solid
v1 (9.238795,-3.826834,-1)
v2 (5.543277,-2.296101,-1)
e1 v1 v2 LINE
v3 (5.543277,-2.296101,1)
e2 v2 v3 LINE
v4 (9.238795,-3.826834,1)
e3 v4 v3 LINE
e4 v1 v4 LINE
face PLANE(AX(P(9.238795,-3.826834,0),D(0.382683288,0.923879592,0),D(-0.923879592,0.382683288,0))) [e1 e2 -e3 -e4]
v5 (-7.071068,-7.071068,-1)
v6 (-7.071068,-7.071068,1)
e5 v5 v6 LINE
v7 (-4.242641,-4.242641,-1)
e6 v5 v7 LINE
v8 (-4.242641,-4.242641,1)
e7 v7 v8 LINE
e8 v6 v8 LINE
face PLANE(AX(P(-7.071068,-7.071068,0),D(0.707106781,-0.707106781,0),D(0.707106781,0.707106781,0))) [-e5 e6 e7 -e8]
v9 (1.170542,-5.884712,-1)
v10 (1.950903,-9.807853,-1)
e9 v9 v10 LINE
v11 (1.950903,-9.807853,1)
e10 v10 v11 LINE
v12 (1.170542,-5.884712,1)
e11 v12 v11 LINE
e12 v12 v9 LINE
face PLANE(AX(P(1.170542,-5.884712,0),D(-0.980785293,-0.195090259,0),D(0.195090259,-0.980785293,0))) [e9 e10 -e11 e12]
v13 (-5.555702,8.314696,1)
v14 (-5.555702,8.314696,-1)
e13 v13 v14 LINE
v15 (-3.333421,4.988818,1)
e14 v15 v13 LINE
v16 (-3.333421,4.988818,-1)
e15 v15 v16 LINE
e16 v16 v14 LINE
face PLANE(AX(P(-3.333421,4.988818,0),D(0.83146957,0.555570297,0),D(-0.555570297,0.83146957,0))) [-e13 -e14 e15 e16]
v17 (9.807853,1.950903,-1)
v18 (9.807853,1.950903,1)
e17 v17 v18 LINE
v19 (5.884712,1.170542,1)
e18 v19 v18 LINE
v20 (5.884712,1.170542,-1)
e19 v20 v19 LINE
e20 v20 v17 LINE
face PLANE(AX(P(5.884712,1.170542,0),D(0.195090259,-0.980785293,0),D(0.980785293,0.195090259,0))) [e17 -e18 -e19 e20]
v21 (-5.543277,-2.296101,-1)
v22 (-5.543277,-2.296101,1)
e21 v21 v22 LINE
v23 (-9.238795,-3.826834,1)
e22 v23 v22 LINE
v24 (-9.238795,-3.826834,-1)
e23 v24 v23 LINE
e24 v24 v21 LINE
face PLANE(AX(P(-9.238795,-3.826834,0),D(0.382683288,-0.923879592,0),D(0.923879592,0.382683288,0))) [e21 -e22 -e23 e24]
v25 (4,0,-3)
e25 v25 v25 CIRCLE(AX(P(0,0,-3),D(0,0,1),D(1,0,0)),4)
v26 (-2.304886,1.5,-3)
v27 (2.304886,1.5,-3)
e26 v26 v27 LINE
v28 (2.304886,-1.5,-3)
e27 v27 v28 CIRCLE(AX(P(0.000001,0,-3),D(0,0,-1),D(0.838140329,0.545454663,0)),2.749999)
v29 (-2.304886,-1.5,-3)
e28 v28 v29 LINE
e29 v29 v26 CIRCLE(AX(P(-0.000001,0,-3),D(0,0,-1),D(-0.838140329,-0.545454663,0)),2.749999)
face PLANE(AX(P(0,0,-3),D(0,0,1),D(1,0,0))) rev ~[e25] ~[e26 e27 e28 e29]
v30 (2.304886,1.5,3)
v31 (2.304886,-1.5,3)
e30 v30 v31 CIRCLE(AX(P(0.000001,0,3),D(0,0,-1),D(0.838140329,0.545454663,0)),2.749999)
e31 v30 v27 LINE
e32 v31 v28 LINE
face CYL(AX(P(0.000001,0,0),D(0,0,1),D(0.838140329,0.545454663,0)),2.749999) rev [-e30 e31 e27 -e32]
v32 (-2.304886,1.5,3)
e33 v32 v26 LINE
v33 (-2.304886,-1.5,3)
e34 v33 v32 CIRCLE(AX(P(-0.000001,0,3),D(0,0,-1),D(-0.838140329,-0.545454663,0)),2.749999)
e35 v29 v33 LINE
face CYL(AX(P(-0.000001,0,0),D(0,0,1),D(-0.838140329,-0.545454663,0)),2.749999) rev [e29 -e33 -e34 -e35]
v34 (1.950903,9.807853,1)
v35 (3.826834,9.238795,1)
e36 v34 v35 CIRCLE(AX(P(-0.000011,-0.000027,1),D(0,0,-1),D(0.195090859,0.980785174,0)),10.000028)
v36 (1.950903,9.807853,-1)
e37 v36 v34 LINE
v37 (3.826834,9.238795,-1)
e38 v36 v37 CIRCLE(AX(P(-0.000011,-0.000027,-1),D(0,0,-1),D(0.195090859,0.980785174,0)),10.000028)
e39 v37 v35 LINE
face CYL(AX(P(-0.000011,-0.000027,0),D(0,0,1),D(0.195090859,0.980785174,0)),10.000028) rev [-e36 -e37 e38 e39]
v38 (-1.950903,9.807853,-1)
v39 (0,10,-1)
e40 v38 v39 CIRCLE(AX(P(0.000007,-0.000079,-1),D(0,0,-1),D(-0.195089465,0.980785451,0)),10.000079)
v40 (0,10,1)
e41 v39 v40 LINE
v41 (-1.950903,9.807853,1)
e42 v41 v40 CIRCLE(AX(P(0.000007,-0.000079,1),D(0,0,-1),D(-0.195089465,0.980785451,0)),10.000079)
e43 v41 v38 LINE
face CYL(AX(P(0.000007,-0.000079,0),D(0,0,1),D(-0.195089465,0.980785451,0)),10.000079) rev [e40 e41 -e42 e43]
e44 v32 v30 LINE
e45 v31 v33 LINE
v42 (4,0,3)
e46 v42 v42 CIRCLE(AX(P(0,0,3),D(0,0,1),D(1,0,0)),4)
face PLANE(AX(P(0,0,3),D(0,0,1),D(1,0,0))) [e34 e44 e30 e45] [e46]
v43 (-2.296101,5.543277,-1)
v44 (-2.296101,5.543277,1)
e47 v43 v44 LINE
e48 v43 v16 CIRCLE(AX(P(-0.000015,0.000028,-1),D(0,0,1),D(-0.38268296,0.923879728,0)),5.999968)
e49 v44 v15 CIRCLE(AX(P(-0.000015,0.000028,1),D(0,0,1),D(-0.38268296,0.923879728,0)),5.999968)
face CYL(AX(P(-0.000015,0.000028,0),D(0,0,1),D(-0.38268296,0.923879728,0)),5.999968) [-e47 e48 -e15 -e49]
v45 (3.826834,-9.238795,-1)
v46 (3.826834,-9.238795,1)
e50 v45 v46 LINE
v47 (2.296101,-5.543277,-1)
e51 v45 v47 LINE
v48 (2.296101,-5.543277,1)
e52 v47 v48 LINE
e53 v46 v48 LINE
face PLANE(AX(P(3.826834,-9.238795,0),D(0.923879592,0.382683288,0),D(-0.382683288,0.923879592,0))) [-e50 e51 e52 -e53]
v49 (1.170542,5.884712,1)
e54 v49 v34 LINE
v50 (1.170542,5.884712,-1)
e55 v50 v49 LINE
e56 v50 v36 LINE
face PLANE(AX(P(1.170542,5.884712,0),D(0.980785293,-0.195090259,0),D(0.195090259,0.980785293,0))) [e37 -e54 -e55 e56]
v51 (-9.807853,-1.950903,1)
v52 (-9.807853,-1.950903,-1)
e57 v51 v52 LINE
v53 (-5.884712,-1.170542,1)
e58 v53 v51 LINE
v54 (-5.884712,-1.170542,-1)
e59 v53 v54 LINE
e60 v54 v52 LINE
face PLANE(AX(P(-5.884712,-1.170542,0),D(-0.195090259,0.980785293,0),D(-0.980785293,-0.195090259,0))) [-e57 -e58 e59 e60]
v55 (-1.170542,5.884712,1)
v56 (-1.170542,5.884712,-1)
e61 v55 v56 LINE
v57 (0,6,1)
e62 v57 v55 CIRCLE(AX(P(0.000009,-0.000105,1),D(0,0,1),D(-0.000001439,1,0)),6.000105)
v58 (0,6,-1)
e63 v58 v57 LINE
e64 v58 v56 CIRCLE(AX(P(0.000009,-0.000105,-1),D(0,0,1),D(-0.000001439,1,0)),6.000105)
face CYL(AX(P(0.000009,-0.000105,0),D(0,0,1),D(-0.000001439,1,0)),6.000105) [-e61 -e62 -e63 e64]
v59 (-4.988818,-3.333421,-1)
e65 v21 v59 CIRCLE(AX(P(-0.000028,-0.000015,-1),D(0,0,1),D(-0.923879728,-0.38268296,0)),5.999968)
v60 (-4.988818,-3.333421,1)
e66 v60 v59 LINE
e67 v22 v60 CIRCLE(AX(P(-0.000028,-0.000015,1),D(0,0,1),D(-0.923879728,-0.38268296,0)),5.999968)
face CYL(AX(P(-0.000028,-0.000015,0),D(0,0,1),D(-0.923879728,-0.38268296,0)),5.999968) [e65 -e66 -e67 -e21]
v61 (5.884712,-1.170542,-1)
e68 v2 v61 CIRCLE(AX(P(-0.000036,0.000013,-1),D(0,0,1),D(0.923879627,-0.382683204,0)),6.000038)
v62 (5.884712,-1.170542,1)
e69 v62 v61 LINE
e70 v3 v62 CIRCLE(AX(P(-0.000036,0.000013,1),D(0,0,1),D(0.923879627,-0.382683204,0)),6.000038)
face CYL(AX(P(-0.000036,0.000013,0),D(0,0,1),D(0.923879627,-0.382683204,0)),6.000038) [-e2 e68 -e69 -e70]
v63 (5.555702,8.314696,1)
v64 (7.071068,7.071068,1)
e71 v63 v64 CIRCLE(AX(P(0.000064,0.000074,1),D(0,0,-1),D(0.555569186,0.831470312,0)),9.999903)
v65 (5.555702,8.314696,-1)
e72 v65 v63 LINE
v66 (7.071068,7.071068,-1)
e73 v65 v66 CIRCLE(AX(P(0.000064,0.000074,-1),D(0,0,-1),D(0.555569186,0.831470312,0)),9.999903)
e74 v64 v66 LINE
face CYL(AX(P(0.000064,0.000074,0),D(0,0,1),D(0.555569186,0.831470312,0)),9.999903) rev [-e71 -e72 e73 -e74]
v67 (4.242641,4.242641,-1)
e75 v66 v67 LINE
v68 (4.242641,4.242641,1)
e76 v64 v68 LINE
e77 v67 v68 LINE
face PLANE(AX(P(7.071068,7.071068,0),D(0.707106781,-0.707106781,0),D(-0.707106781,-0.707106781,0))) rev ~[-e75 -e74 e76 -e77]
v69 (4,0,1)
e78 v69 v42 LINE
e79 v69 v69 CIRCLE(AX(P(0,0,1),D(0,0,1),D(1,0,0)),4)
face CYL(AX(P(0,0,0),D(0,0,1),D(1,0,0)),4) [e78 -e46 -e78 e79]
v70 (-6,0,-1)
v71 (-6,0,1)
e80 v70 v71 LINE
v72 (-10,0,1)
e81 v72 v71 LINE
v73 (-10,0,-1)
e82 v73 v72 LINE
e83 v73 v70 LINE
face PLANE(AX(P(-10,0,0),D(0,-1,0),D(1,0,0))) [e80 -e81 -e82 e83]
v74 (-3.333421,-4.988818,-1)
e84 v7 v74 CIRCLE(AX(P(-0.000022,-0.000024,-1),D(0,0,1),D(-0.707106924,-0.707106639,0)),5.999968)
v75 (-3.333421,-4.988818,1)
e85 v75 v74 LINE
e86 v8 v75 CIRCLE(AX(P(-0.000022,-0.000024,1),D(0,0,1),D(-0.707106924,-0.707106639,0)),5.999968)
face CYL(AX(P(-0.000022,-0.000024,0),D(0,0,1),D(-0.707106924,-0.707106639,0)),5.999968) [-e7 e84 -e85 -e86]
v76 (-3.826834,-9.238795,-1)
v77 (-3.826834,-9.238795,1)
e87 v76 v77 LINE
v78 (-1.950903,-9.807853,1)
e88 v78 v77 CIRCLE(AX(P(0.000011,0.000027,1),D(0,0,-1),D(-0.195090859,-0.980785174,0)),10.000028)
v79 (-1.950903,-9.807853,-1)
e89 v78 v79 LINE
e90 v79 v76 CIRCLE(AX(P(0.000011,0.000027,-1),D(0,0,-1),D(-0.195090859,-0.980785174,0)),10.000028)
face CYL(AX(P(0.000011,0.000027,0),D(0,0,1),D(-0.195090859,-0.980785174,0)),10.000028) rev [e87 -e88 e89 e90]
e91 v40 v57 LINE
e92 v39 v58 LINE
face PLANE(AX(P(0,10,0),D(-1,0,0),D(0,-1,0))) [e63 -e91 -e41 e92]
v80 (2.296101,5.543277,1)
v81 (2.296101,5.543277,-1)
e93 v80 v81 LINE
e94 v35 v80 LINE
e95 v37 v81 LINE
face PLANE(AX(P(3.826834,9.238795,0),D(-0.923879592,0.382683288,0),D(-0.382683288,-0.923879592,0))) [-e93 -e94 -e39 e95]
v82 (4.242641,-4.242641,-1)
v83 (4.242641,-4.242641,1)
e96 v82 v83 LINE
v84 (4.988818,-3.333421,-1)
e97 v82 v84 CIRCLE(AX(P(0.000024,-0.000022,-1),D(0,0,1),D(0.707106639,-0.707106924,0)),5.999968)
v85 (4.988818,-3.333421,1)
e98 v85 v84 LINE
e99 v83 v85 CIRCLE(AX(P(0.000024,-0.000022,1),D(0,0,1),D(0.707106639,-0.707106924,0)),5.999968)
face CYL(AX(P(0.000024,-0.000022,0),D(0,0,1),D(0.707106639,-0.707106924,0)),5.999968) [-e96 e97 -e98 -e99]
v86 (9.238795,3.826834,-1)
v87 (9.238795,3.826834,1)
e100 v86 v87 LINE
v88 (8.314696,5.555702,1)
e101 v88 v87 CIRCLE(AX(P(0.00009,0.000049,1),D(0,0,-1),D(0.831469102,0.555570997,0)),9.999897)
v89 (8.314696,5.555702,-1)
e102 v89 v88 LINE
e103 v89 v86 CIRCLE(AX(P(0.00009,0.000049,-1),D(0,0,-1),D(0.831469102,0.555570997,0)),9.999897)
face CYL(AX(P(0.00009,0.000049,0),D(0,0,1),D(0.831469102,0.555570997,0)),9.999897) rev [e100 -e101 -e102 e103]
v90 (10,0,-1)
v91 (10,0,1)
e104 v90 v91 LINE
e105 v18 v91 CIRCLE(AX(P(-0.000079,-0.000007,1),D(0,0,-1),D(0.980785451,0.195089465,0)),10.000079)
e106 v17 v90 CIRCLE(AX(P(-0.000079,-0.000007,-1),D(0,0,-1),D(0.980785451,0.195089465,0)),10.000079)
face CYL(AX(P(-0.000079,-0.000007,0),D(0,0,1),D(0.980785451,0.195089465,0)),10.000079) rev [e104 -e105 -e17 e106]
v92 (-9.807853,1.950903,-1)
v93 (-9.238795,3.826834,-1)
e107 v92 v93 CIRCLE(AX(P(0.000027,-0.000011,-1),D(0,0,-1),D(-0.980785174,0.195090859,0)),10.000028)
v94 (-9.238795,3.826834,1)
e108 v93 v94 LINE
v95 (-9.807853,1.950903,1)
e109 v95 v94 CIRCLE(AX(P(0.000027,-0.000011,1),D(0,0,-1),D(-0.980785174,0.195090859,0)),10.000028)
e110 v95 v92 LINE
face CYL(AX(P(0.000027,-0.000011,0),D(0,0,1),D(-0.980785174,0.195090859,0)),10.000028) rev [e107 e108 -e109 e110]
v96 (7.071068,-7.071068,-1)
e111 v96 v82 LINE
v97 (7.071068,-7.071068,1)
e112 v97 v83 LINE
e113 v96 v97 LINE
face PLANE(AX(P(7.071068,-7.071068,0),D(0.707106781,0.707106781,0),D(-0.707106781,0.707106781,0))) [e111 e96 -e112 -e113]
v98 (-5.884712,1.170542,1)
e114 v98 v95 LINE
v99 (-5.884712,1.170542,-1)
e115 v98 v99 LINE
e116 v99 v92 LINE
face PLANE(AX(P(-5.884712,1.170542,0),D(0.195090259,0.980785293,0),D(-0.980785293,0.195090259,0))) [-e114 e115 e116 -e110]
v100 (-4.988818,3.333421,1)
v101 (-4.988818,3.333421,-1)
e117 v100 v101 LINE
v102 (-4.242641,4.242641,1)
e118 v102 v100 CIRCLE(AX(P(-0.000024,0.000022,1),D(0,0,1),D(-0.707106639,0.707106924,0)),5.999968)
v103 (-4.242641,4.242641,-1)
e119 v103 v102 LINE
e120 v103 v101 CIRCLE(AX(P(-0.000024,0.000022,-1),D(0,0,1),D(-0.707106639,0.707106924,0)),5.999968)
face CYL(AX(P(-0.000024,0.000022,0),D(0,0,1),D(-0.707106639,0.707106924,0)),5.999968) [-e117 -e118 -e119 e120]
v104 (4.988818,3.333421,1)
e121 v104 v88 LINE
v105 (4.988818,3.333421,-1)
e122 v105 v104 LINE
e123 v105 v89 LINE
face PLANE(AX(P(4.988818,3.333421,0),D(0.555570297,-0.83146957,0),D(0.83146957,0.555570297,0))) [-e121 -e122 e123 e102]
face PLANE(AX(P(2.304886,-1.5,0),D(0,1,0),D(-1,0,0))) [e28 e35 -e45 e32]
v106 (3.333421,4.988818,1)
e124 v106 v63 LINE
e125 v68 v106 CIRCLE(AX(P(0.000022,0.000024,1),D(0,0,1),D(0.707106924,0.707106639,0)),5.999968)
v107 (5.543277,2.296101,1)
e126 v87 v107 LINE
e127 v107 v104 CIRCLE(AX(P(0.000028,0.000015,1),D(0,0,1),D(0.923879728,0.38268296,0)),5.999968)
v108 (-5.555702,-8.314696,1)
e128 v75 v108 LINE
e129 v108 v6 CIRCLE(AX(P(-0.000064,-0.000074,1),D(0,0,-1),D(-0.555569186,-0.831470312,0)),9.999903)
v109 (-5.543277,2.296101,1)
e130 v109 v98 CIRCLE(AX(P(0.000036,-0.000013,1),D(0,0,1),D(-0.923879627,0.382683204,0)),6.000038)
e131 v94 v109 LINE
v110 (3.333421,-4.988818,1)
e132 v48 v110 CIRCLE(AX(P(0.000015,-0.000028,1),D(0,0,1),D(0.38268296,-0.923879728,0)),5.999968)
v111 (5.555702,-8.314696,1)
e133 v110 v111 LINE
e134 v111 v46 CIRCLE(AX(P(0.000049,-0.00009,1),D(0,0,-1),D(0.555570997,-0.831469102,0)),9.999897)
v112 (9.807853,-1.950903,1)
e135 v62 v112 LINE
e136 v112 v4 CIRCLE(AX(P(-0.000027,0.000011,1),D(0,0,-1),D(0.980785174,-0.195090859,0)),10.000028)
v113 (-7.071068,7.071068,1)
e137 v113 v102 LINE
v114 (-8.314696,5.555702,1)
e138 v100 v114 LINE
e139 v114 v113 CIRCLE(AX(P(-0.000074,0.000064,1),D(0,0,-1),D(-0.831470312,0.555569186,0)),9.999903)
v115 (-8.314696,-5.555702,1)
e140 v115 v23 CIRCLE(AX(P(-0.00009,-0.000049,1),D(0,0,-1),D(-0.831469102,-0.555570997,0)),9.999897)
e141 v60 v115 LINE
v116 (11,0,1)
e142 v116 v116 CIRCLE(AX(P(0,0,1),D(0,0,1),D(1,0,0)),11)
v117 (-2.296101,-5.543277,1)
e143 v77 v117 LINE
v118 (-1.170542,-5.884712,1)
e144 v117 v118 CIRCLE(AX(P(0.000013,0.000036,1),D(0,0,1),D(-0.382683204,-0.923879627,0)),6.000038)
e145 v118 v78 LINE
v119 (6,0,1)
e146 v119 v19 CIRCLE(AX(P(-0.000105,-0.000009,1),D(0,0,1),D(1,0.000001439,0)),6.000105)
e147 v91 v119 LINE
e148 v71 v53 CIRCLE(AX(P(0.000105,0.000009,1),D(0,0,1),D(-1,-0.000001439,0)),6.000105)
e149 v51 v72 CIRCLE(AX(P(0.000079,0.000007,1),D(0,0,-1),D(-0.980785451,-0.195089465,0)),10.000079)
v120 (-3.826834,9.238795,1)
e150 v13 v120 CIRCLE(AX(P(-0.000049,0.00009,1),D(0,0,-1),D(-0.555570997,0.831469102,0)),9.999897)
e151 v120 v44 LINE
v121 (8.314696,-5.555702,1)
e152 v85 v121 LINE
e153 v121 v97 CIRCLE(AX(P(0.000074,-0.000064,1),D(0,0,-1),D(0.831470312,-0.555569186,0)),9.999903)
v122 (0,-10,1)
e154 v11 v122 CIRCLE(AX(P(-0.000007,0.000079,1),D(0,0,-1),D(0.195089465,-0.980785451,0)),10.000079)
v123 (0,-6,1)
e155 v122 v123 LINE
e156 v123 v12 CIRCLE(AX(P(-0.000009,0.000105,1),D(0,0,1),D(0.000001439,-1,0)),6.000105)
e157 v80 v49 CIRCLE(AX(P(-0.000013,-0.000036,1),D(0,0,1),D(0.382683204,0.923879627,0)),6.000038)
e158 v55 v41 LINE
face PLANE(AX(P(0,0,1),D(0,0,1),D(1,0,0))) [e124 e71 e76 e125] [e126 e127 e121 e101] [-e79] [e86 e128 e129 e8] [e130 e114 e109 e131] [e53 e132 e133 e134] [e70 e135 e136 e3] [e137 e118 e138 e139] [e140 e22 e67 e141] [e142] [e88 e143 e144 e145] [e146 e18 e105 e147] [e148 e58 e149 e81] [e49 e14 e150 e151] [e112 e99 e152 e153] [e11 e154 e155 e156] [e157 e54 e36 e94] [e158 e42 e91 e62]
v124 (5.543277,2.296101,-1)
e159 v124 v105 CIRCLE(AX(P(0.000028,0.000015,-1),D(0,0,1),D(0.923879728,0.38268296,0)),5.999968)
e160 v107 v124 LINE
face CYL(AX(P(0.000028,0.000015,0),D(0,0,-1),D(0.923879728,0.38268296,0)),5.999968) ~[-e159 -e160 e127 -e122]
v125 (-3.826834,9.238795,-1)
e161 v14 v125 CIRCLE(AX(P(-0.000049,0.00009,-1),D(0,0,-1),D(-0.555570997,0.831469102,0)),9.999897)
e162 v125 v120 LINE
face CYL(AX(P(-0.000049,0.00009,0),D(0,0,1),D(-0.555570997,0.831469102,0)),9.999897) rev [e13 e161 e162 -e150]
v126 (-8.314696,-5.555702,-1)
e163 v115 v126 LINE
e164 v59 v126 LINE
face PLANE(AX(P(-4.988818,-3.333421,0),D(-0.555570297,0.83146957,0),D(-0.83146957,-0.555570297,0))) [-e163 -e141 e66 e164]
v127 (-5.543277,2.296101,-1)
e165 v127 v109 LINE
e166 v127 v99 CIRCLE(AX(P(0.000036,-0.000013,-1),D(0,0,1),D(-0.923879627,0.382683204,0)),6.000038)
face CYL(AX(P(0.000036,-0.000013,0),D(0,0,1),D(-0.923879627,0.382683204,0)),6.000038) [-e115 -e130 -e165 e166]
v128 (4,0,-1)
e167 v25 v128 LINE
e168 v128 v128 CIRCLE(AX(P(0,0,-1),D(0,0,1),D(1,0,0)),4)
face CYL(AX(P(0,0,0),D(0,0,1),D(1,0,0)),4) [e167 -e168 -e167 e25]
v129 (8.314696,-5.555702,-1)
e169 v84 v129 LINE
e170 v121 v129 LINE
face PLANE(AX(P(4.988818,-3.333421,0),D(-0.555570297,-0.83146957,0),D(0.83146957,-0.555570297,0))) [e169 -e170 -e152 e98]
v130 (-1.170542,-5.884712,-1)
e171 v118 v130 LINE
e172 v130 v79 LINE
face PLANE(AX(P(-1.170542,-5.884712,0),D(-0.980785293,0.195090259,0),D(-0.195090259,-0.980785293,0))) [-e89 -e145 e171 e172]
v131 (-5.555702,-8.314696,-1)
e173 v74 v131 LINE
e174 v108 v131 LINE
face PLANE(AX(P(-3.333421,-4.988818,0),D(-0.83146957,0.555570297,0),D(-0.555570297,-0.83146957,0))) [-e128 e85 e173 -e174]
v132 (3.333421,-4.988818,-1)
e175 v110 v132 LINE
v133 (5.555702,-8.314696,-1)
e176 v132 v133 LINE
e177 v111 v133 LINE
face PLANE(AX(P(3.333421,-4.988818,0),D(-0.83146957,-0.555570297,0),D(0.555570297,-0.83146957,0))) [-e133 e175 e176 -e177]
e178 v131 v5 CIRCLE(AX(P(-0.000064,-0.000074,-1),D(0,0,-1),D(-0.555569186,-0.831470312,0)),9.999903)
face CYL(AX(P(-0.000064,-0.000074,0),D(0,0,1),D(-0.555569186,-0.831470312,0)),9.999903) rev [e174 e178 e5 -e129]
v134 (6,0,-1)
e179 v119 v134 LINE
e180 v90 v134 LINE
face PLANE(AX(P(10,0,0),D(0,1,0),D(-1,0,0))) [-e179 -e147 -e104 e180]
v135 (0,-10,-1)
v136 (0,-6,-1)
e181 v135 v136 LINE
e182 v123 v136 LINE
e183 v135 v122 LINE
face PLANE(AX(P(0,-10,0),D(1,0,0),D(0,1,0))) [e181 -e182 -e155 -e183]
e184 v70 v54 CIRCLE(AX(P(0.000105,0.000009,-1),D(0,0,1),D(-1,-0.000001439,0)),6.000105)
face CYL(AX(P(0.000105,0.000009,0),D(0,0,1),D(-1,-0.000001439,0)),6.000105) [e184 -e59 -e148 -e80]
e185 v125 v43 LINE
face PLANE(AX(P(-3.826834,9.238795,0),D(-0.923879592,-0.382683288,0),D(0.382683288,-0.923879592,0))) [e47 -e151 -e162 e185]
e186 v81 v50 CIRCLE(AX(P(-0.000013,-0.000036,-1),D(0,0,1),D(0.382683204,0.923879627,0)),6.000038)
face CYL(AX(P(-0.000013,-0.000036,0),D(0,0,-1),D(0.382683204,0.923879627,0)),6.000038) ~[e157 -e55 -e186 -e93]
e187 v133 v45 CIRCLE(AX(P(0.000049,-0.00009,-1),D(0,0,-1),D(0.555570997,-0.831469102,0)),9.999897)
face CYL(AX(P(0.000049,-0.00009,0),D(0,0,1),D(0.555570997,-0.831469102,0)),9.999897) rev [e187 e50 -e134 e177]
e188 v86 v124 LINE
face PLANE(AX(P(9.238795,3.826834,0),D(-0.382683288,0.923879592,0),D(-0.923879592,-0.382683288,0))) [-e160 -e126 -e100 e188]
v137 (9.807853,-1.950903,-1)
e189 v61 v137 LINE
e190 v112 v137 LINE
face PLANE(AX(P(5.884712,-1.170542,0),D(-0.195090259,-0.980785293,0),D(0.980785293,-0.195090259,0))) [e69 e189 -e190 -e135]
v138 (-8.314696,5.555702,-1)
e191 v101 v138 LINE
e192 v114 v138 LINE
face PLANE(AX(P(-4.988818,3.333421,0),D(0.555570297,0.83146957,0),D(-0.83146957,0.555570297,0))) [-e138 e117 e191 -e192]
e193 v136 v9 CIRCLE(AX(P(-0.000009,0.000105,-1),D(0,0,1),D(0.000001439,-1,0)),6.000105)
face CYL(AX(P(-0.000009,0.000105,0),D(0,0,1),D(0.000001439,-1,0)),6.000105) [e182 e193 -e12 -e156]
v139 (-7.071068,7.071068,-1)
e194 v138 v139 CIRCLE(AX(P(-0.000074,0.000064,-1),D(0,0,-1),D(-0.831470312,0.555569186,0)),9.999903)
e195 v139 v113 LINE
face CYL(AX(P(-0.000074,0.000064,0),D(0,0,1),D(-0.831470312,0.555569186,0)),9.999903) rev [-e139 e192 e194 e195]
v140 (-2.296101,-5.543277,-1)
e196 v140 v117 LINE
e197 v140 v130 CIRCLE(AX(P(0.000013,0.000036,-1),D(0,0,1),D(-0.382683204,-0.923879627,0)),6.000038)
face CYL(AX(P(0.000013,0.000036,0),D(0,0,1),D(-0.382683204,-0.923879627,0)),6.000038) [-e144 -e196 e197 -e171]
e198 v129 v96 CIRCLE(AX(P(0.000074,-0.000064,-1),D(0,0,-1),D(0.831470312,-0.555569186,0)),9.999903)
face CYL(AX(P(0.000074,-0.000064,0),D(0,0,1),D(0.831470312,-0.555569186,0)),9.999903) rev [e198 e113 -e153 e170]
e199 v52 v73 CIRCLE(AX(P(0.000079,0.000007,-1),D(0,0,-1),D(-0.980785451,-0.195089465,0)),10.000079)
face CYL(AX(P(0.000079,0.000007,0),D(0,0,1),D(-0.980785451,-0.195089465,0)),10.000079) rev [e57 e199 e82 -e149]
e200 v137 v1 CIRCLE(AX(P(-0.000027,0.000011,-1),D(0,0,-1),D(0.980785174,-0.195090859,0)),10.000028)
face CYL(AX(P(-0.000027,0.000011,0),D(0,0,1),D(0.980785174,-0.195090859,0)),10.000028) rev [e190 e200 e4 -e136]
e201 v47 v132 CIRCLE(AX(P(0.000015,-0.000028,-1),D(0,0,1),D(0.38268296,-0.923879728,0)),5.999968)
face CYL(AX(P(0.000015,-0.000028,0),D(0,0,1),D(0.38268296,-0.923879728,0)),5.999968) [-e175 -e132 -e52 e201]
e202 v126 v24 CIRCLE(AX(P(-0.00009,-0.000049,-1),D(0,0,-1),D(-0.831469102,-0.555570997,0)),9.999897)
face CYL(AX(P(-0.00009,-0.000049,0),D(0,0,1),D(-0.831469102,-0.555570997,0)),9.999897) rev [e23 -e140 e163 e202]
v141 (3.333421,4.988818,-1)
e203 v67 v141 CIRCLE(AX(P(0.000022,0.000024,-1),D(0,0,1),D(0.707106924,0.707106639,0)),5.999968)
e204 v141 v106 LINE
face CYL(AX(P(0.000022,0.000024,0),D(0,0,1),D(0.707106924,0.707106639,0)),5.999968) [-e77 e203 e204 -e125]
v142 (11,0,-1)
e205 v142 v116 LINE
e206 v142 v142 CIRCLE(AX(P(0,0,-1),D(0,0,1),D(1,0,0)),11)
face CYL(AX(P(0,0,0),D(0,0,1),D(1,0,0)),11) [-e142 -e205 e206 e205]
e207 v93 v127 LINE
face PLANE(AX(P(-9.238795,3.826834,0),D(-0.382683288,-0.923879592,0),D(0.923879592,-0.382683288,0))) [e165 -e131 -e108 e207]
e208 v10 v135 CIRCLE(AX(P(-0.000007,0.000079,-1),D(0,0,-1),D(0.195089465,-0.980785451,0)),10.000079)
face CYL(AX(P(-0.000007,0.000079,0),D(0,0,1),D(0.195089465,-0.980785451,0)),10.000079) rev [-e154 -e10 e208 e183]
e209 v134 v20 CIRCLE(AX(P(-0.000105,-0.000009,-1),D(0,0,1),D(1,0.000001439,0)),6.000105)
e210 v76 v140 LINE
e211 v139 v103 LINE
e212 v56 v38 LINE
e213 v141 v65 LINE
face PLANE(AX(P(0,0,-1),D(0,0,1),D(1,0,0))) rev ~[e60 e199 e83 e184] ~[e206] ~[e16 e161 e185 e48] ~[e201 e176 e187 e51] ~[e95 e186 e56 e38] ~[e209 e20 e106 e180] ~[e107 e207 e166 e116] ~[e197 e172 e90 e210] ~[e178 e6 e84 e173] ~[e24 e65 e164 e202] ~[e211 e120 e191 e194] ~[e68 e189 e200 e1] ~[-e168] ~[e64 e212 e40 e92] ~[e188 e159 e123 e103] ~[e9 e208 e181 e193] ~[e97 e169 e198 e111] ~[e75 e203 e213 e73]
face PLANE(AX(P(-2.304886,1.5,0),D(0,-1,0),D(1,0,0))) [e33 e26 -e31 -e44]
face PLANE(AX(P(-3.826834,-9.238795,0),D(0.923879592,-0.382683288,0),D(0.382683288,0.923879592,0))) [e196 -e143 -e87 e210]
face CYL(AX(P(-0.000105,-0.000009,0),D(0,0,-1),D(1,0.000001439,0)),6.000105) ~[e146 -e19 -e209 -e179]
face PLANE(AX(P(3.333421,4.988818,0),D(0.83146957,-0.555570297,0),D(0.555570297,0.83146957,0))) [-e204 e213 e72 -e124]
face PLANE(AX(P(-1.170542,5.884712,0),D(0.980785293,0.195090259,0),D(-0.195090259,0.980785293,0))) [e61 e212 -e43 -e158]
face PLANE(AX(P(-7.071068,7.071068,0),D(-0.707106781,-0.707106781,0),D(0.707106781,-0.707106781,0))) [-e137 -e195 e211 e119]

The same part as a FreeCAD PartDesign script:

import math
import FreeCAD as App
import Part
import Sketcher
Q = App.Units.Quantity

doc = App.newDocument("Part")
params = doc.addObject("Spreadsheet::Sheet", "Params")
for row, (alias, value) in enumerate([
    ("sketch1_diameter", "8 mm"),
    ("sketch1_radius", "2.749999 mm"),
    ("pad1_length", "6 mm"),
    ("sketch2_diameter", "22 mm"),
    ("sketch2_diameter2", "8 mm"),
    ("sketch2_width", "4 mm"),
    ("sketch2_width2", "4 mm"),
    ("sketch2_height", "4 mm"),
    ("pad2_length", "2 mm"),
], start=1):
    params.set(f"A{row}", alias)
    params.set(f"B{row}", "=" + value)
    params.setAlias(f"B{row}", alias)

body = doc.addObject("PartDesign::Body", "Body")

sketch1 = body.newObject("Sketcher::SketchObject", "Sketch")
sketch1.AttachmentSupport = (doc.getObject("XY_Plane"), [""])
sketch1.MapMode = "FlatFace"
sketch1.addGeometry([
    Part.Circle(App.Vector(0, 0, 0), App.Vector(0, 0, 1), 4),
    Part.LineSegment(App.Vector(2.3, -1.5, 0), App.Vector(-2.3, -1.5, 0)),
    Part.ArcOfCircle(Part.Circle(App.Vector(0, 0, 0), App.Vector(0, 0, 1), 2.7), math.radians(147), math.radians(213)),
    Part.LineSegment(App.Vector(-2.3, 1.5, 0), App.Vector(2.3, 1.5, 0)),
    Part.ArcOfCircle(Part.Circle(App.Vector(0, 0, 0), App.Vector(0, 0, 1), 2.7), math.radians(-33), math.radians(33)),
], False)
sketch1.addConstraint([
    Sketcher.Constraint("Coincident", 1, 2, 2, 2),
    Sketcher.Constraint("Coincident", 2, 1, 3, 1),
    Sketcher.Constraint("Coincident", 3, 2, 4, 2),
    Sketcher.Constraint("Coincident", 4, 1, 1, 1),
    Sketcher.Constraint("Horizontal", 1),
    Sketcher.Constraint("Horizontal", 3),
    Sketcher.Constraint("Coincident", 0, 3, -1, 1),
    Sketcher.Constraint("Coincident", 2, 3, -1, 1),
    Sketcher.Constraint("Coincident", 4, 3, -1, 1),
    Sketcher.Constraint("Equal", 2, 4),
    Sketcher.Constraint("Vertical", 1, 2, 2, 1),
    Sketcher.Constraint("Diameter", 0, Q("8 mm")),
    Sketcher.Constraint("Radius", 2, Q("2.749999 mm")),
    Sketcher.Constraint("DistanceY", 1, 2, 2, 1, Q("3 mm")),
])
sketch1.setExpression("Constraints[11]", "Params.sketch1_diameter")
sketch1.setExpression("Constraints[12]", "Params.sketch1_radius")
pad1 = body.newObject("PartDesign::Pad", "Pad")
pad1.Profile = sketch1
pad1.setExpression("Length", "Params.pad1_length")
pad1.Midplane = True

sketch2 = body.newObject("Sketcher::SketchObject", "Sketch001")
sketch2.AttachmentSupport = (doc.getObject("XY_Plane"), [""])
sketch2.MapMode = "FlatFace"
sketch2.addGeometry([
    Part.Circle(App.Vector(0, 0, 0), App.Vector(0, 0, 1), 11),
    Part.ArcOfCircle(Part.Circle(App.Vector(-0.000064, -0.000074, 0), App.Vector(0, 0, 1), 9.999903), math.radians(-135.000039), math.radians(-123.749928)),
    Part.LineSegment(App.Vector(-7.071068, -7.071068, 0), App.Vector(-4.242641, -4.242641, 0)),
    Part.ArcOfCircle(Part.Circle(App.Vector(-0.000022, -0.000024, 0), App.Vector(0, 0, 1), 5.999968), math.radians(-135.000012), math.radians(-123.749946)),
    Part.LineSegment(App.Vector(-3.333421, -4.988818, 0), App.Vector(-5.555702, -8.314696, 0)),
    Part.ArcOfCircle(Part.Circle(App.Vector(0.000011, 0.000027, 0), App.Vector(0, 0, 1), 10.000028), math.radians(-112.5), math.radians(-101.250031)),
    Part.LineSegment(App.Vector(-3.826834, -9.238795, 0), App.Vector(-2.296101, -5.543277, 0)),
    Part.ArcOfCircle(Part.Circle(App.Vector(0.000013, 0.000036, 0), App.Vector(0, 0, 1), 6.000038), math.radians(-112.499986), math.radians(-101.250052)),
    Part.LineSegment(App.Vector(-1.170542, -5.884712, 0), App.Vector(-1.950903, -9.807853, 0)),
    Part.ArcOfCircle(Part.Circle(App.Vector(-0.00009, -0.000049, 0), App.Vector(0, 0, 1), 9.999897), math.radians(-157.500063), math.radians(-146.249947)),
    Part.LineSegment(App.Vector(-9.238795, -3.826834, 0), App.Vector(-5.543277, -2.296101, 0)),
    Part.ArcOfCircle(Part.Circle(App.Vector(-0.000028, -0.000015, 0), App.Vector(0, 0, 1), 5.999968), math.radians(-157.500029), math.radians(-146.249979)),
    Part.LineSegment(App.Vector(-4.988818, -3.333421, 0), App.Vector(-8.314696, -5.555702, 0)),
    Part.ArcOfCircle(Part.Circle(App.Vector(0.000079, 0.000007, 0), App.Vector(0, 0, 1), 10.000079), math.radians(-179.99996), math.radians(-168.75005)),
    Part.LineSegment(App.Vector(-10, 0, 0), App.Vector(-6, 0, 0)),
    Part.ArcOfCircle(Part.Circle(App.Vector(0.000105, 0.000009, 0), App.Vector(0, 0, 1), 6.000105), math.radians(-179.999918), math.radians(-168.750114)),
    Part.LineSegment(App.Vector(-5.884712, -1.170542, 0), App.Vector(-9.807853, -1.950903, 0)),
    Part.LineSegment(App.Vector(1.170542, -5.884712, 0), App.Vector(1.950903, -9.807853, 0)),
    Part.ArcOfCircle(Part.Circle(App.Vector(-0.000007, 0.000079, 0), App.Vector(0, 0, 1), 10.000079), math.radians(-89.99996), math.radians(-78.75005)),
    Part.LineSegment(App.Vector(0, -10, 0), App.Vector(0, -6, 0)),
    Part.ArcOfCircle(Part.Circle(App.Vector(-0.000009, 0.000105, 0), App.Vector(0, 0, 1), 6.000105), math.radians(-89.999918), math.radians(-78.750114)),
    Part.ArcOfCircle(Part.Circle(App.Vector(0.000049, -0.00009, 0), App.Vector(0, 0, 1), 9.999897), math.radians(-67.500063), math.radians(-56.249947)),
    Part.LineSegment(App.Vector(3.826834, -9.238795, 0), App.Vector(2.296101, -5.543277, 0)),
    Part.ArcOfCircle(Part.Circle(App.Vector(0.000015, -0.000028, 0), App.Vector(0, 0, 1), 5.999968), math.radians(-67.500029), math.radians(-56.249979)),
    Part.LineSegment(App.Vector(3.333421, -4.988818, 0), App.Vector(5.555702, -8.314696, 0)),
    Part.ArcOfCircle(Part.Circle(App.Vector(0.000074, -0.000064, 0), App.Vector(0, 0, 1), 9.999903), math.radians(-45.000039), math.radians(-33.749928)),
    Part.LineSegment(App.Vector(7.071068, -7.071068, 0), App.Vector(4.242641, -4.242641, 0)),
    Part.ArcOfCircle(Part.Circle(App.Vector(0.000024, -0.000022, 0), App.Vector(0, 0, 1), 5.999968), math.radians(-45.000012), math.radians(-33.749946)),
    Part.LineSegment(App.Vector(4.988818, -3.333421, 0), App.Vector(8.314696, -5.555702, 0)),
    Part.ArcOfCircle(Part.Circle(App.Vector(-0.000027, 0.000011, 0), App.Vector(0, 0, 1), 10.000028), math.radians(-22.5), math.radians(-11.250031)),
    Part.LineSegment(App.Vector(9.238795, -3.826834, 0), App.Vector(5.543277, -2.296101, 0)),
    Part.ArcOfCircle(Part.Circle(App.Vector(-0.000036, 0.000013, 0), App.Vector(0, 0, 1), 6.000038), math.radians(-22.499986), math.radians(-11.250052)),
    Part.LineSegment(App.Vector(5.884712, -1.170542, 0), App.Vector(9.807853, -1.950903, 0)),
    Part.ArcOfCircle(Part.Circle(App.Vector(0.000027, -0.000011, 0), App.Vector(0, 0, 1), 10.000028), math.radians(157.5), math.radians(168.749969)),
    Part.LineSegment(App.Vector(-9.238795, 3.826834, 0), App.Vector(-5.543277, 2.296101, 0)),
    Part.ArcOfCircle(Part.Circle(App.Vector(0.000036, -0.000013, 0), App.Vector(0, 0, 1), 6.000038), math.radians(157.500014), math.radians(168.749948)),
    Part.LineSegment(App.Vector(-5.884712, 1.170542, 0), App.Vector(-9.807853, 1.950903, 0)),
    Part.ArcOfCircle(Part.Circle(App.Vector(-0.000074, 0.000064, 0), App.Vector(0, 0, 1), 9.999903), math.radians(134.999961), math.radians(146.250072)),
    Part.LineSegment(App.Vector(-7.071068, 7.071068, 0), App.Vector(-4.242641, 4.242641, 0)),
    Part.ArcOfCircle(Part.Circle(App.Vector(-0.000024, 0.000022, 0), App.Vector(0, 0, 1), 5.999968), math.radians(134.999988), math.radians(146.250054)),
    Part.LineSegment(App.Vector(-4.988818, 3.333421, 0), App.Vector(-8.314696, 5.555702, 0)),
    Part.ArcOfCircle(Part.Circle(App.Vector(-0.000049, 0.00009, 0), App.Vector(0, 0, 1), 9.999897), math.radians(112.499937), math.radians(123.750053)),
    Part.LineSegment(App.Vector(-3.826834, 9.238795, 0), App.Vector(-2.296101, 5.543277, 0)),
    Part.ArcOfCircle(Part.Circle(App.Vector(-0.000015, 0.000028, 0), App.Vector(0, 0, 1), 5.999968), math.radians(112.499971), math.radians(123.750021)),
    Part.LineSegment(App.Vector(-3.333421, 4.988818, 0), App.Vector(-5.555702, 8.314696, 0)),
    Part.ArcOfCircle(Part.Circle(App.Vector(0.000007, -0.000079, 0), App.Vector(0, 0, 1), 10.000079), math.radians(90.00004), math.radians(101.24995)),
    Part.LineSegment(App.Vector(0, 10, 0), App.Vector(0, 6, 0)),
    Part.ArcOfCircle(Part.Circle(App.Vector(0.000009, -0.000105, 0), App.Vector(0, 0, 1), 6.000105), math.radians(90.000082), math.radians(101.249886)),
    Part.LineSegment(App.Vector(-1.170542, 5.884712, 0), App.Vector(-1.950903, 9.807853, 0)),
    Part.Circle(App.Vector(0, 0, 0), App.Vector(0, 0, 1), 4),
    Part.ArcOfCircle(Part.Circle(App.Vector(-0.000079, -0.000007, 0), App.Vector(0, 0, 1), 10.000079), math.radians(0.00004), math.radians(11.24995)),
    Part.LineSegment(App.Vector(10, 0, 0), App.Vector(6, 0, 0)),
    Part.ArcOfCircle(Part.Circle(App.Vector(-0.000105, -0.000009, 0), App.Vector(0, 0, 1), 6.000105), math.radians(0.000082), math.radians(11.249886)),
    Part.LineSegment(App.Vector(5.884712, 1.170542, 0), App.Vector(9.807853, 1.950903, 0)),
    Part.ArcOfCircle(Part.Circle(App.Vector(0.00009, 0.000049, 0), App.Vector(0, 0, 1), 9.999897), math.radians(22.499937), math.radians(33.750053)),
    Part.LineSegment(App.Vector(9.238795, 3.826834, 0), App.Vector(5.543277, 2.296101, 0)),
    Part.ArcOfCircle(Part.Circle(App.Vector(0.000028, 0.000015, 0), App.Vector(0, 0, 1), 5.999968), math.radians(22.499971), math.radians(33.750021)),
    Part.LineSegment(App.Vector(4.988818, 3.333421, 0), App.Vector(8.314696, 5.555702, 0)),
    Part.ArcOfCircle(Part.Circle(App.Vector(-0.000011, -0.000027, 0), App.Vector(0, 0, 1), 10.000028), math.radians(67.5), math.radians(78.749969)),
    Part.LineSegment(App.Vector(3.826834, 9.238795, 0), App.Vector(2.296101, 5.543277, 0)),
    Part.ArcOfCircle(Part.Circle(App.Vector(-0.000013, -0.000036, 0), App.Vector(0, 0, 1), 6.000038), math.radians(67.500014), math.radians(78.749948)),
    Part.LineSegment(App.Vector(1.170542, 5.884712, 0), App.Vector(1.950903, 9.807853, 0)),
    Part.ArcOfCircle(Part.Circle(App.Vector(0.000064, 0.000074, 0), App.Vector(0, 0, 1), 9.999903), math.radians(44.999961), math.radians(56.250072)),
    Part.LineSegment(App.Vector(7.071068, 7.071068, 0), App.Vector(4.242641, 4.242641, 0)),
    Part.ArcOfCircle(Part.Circle(App.Vector(0.000022, 0.000024, 0), App.Vector(0, 0, 1), 5.999968), math.radians(44.999988), math.radians(56.250054)),
    Part.LineSegment(App.Vector(3.333421, 4.988818, 0), App.Vector(5.555702, 8.314696, 0)),
], False)
sketch2.addConstraint([
    Sketcher.Constraint("Coincident", 1, 1, 2, 1),
    Sketcher.Constraint("Coincident", 2, 2, 3, 1),
    Sketcher.Constraint("Coincident", 3, 2, 4, 1),
    Sketcher.Constraint("Coincident", 4, 2, 1, 2),
    Sketcher.Constraint("Coincident", 5, 1, 6, 1),
    Sketcher.Constraint("Coincident", 6, 2, 7, 1),
    Sketcher.Constraint("Coincident", 7, 2, 8, 1),
    Sketcher.Constraint("Coincident", 8, 2, 5, 2),
    Sketcher.Constraint("Coincident", 9, 1, 10, 1),
    Sketcher.Constraint("Coincident", 10, 2, 11, 1),
    Sketcher.Constraint("Coincident", 11, 2, 12, 1),
    Sketcher.Constraint("Coincident", 12, 2, 9, 2),
    Sketcher.Constraint("Coincident", 13, 1, 14, 1),
    Sketcher.Constraint("Coincident", 14, 2, 15, 1),
    Sketcher.Constraint("Coincident", 15, 2, 16, 1),
    Sketcher.Constraint("Coincident", 16, 2, 13, 2),
    Sketcher.Constraint("Coincident", 17, 2, 18, 2),
    Sketcher.Constraint("Coincident", 18, 1, 19, 1),
    Sketcher.Constraint("Coincident", 19, 2, 20, 1),
    Sketcher.Constraint("Coincident", 20, 2, 17, 1),
    Sketcher.Constraint("Coincident", 21, 1, 22, 1),
    Sketcher.Constraint("Coincident", 22, 2, 23, 1),
    Sketcher.Constraint("Coincident", 23, 2, 24, 1),
    Sketcher.Constraint("Coincident", 24, 2, 21, 2),
    Sketcher.Constraint("Coincident", 25, 1, 26, 1),
    Sketcher.Constraint("Coincident", 26, 2, 27, 1),
    Sketcher.Constraint("Coincident", 27, 2, 28, 1),
    Sketcher.Constraint("Coincident", 28, 2, 25, 2),
    Sketcher.Constraint("Coincident", 29, 1, 30, 1),
    Sketcher.Constraint("Coincident", 30, 2, 31, 1),
    Sketcher.Constraint("Coincident", 31, 2, 32, 1),
    Sketcher.Constraint("Coincident", 32, 2, 29, 2),
    Sketcher.Constraint("Coincident", 33, 1, 34, 1),
    Sketcher.Constraint("Coincident", 34, 2, 35, 1),
    Sketcher.Constraint("Coincident", 35, 2, 36, 1),
    Sketcher.Constraint("Coincident", 36, 2, 33, 2),
    Sketcher.Constraint("Coincident", 37, 1, 38, 1),
    Sketcher.Constraint("Coincident", 38, 2, 39, 1),
    Sketcher.Constraint("Coincident", 39, 2, 40, 1),
    Sketcher.Constraint("Coincident", 40, 2, 37, 2),
    Sketcher.Constraint("Coincident", 41, 1, 42, 1),
    Sketcher.Constraint("Coincident", 42, 2, 43, 1),
    Sketcher.Constraint("Coincident", 43, 2, 44, 1),
    Sketcher.Constraint("Coincident", 44, 2, 41, 2),
    Sketcher.Constraint("Coincident", 45, 1, 46, 1),
    Sketcher.Constraint("Coincident", 46, 2, 47, 1),
    Sketcher.Constraint("Coincident", 47, 2, 48, 1),
    Sketcher.Constraint("Coincident", 48, 2, 45, 2),
    Sketcher.Constraint("Coincident", 50, 1, 51, 1),
    Sketcher.Constraint("Coincident", 51, 2, 52, 1),
    Sketcher.Constraint("Coincident", 52, 2, 53, 1),
    Sketcher.Constraint("Coincident", 53, 2, 50, 2),
    Sketcher.Constraint("Coincident", 54, 1, 55, 1),
    Sketcher.Constraint("Coincident", 55, 2, 56, 1),
    Sketcher.Constraint("Coincident", 56, 2, 57, 1),
    Sketcher.Constraint("Coincident", 57, 2, 54, 2),
    Sketcher.Constraint("Coincident", 58, 1, 59, 1),
    Sketcher.Constraint("Coincident", 59, 2, 60, 1),
    Sketcher.Constraint("Coincident", 60, 2, 61, 1),
    Sketcher.Constraint("Coincident", 61, 2, 58, 2),
    Sketcher.Constraint("Coincident", 62, 1, 63, 1),
    Sketcher.Constraint("Coincident", 63, 2, 64, 1),
    Sketcher.Constraint("Coincident", 64, 2, 65, 1),
    Sketcher.Constraint("Coincident", 65, 2, 62, 2),
    Sketcher.Constraint("Horizontal", 14),
    Sketcher.Constraint("Vertical", 19),
    Sketcher.Constraint("Vertical", 46),
    Sketcher.Constraint("Horizontal", 51),
    Sketcher.Constraint("Coincident", 0, 3, -1, 1),
    Sketcher.Constraint("Coincident", 49, 3, -1, 1),
    Sketcher.Constraint("Coincident", 7, 3, 5, 3),
    Sketcher.Constraint("Coincident", 31, 3, 29, 3),
    Sketcher.Constraint("Coincident", 35, 3, 33, 3),
    Sketcher.Constraint("Coincident", 60, 3, 58, 3),
    Sketcher.Constraint("PointOnObject", 13, 1, -1),
    Sketcher.Constraint("PointOnObject", 18, 1, -2),
    Sketcher.Constraint("PointOnObject", 45, 1, -2),
    Sketcher.Constraint("PointOnObject", 50, 1, -1),
    Sketcher.Constraint("Diameter", 0, Q("22 mm")),
    Sketcher.Constraint("Diameter", 49, Q("8 mm")),
    Sketcher.Constraint("DistanceX", 14, 1, 14, 2, Q("4 mm")),
    Sketcher.Constraint("DistanceX", 51, 2, 51, 1, Q("4 mm")),
    Sketcher.Constraint("DistanceY", 19, 1, 19, 2, Q("4 mm")),
    Sketcher.Constraint("DistanceY", 46, 2, 46, 1, Q("4 mm")),
    Sketcher.Constraint("Distance", 2, Q("4 mm")),
    Sketcher.Constraint("Distance", 4, Q("4 mm")),
    Sketcher.Constraint("Distance", 6, Q("4 mm")),
    Sketcher.Constraint("Distance", 10, Q("4 mm")),
    Sketcher.Constraint("Distance", 12, Q("4 mm")),
    Sketcher.Constraint("Distance", 16, Q("4 mm")),
    Sketcher.Constraint("Distance", 17, Q("4 mm")),
    Sketcher.Constraint("Distance", 22, Q("4 mm")),
    Sketcher.Constraint("Distance", 24, Q("4 mm")),
    Sketcher.Constraint("Distance", 26, Q("4 mm")),
    Sketcher.Constraint("Distance", 28, Q("4 mm")),
    Sketcher.Constraint("Distance", 30, Q("4 mm")),
    Sketcher.Constraint("Distance", 34, Q("4 mm")),
    Sketcher.Constraint("Distance", 38, Q("4 mm")),
    Sketcher.Constraint("Distance", 40, Q("4 mm")),
    Sketcher.Constraint("Distance", 42, Q("4 mm")),
    Sketcher.Constraint("Distance", 44, Q("4 mm")),
    Sketcher.Constraint("Distance", 48, Q("4 mm")),
    Sketcher.Constraint("Distance", 53, Q("4 mm")),
    Sketcher.Constraint("Distance", 55, Q("4 mm")),
    Sketcher.Constraint("Distance", 57, Q("4 mm")),
    Sketcher.Constraint("Distance", 59, Q("4 mm")),
    Sketcher.Constraint("Distance", 63, Q("4 mm")),
    Sketcher.Constraint("Distance", 65, Q("4 mm")),
    Sketcher.Constraint("DistanceX", 13, 1, -1, 1, Q("10 mm")),
    Sketcher.Constraint("DistanceY", 18, 1, -1, 1, Q("10 mm")),
    Sketcher.Constraint("DistanceY", -1, 1, 45, 1, Q("10 mm")),
    Sketcher.Constraint("DistanceX", -1, 1, 50, 1, Q("10 mm")),
    Sketcher.Constraint("Radius", 5, Q("10.000028 mm")),
    Sketcher.Constraint("Radius", 11, Q("5.999968 mm")),
    Sketcher.Constraint("Radius", 13, Q("10.000079 mm")),
    Sketcher.Constraint("Radius", 18, Q("10.000079 mm")),
    Sketcher.Constraint("Radius", 23, Q("5.999968 mm")),
    Sketcher.Constraint("Radius", 29, Q("10.000028 mm")),
    Sketcher.Constraint("Radius", 33, Q("10.000028 mm")),
    Sketcher.Constraint("Radius", 43, Q("5.999968 mm")),
    Sketcher.Constraint("Radius", 45, Q("10.000079 mm")),
    Sketcher.Constraint("Radius", 50, Q("10.000079 mm")),
    Sketcher.Constraint("Radius", 56, Q("5.999968 mm")),
    Sketcher.Constraint("Radius", 58, Q("10.000028 mm")),
    Sketcher.Constraint("Radius", 1, Q("9.999903 mm")),
    Sketcher.Constraint("Radius", 3, Q("5.999968 mm")),
    Sketcher.Constraint("Radius", 9, Q("9.999897 mm")),
    Sketcher.Constraint("Radius", 15, Q("6.000105 mm")),
    Sketcher.Constraint("Radius", 20, Q("6.000105 mm")),
    Sketcher.Constraint("Radius", 21, Q("9.999897 mm")),
    Sketcher.Constraint("Radius", 25, Q("9.999903 mm")),
    Sketcher.Constraint("Radius", 27, Q("5.999968 mm")),
    Sketcher.Constraint("Radius", 37, Q("9.999903 mm")),
    Sketcher.Constraint("Radius", 39, Q("5.999968 mm")),
    Sketcher.Constraint("Radius", 41, Q("9.999897 mm")),
    Sketcher.Constraint("Radius", 47, Q("6.000105 mm")),
    Sketcher.Constraint("Radius", 52, Q("6.000105 mm")),
    Sketcher.Constraint("Radius", 54, Q("9.999897 mm")),
    Sketcher.Constraint("Radius", 62, Q("9.999903 mm")),
    Sketcher.Constraint("Radius", 64, Q("5.999968 mm")),
    Sketcher.Constraint("DistanceX", 6, 2, -1, 1, Q("2.296101 mm")),
    Sketcher.Constraint("DistanceY", 10, 2, -1, 1, Q("2.296101 mm")),
    Sketcher.Constraint("DistanceX", -1, 1, 22, 2, Q("2.296101 mm")),
    Sketcher.Constraint("DistanceY", 30, 2, -1, 1, Q("2.296101 mm")),
    Sketcher.Constraint("DistanceY", -1, 1, 34, 2, Q("2.296101 mm")),
    Sketcher.Constraint("DistanceX", 42, 2, -1, 1, Q("2.296101 mm")),
    Sketcher.Constraint("DistanceY", -1, 1, 55, 2, Q("2.296101 mm")),
    Sketcher.Constraint("DistanceX", -1, 1, 59, 2, Q("2.296101 mm")),
    Sketcher.Constraint("DistanceX", 1, 1, -1, 1, Q("7.071068 mm")),
    Sketcher.Constraint("DistanceY", 1, 1, -1, 1, Q("7.071068 mm")),
    Sketcher.Constraint("DistanceX", 2, 2, -1, 1, Q("4.242641 mm")),
    Sketcher.Constraint("DistanceX", 3, 2, -1, 1, Q("3.333421 mm")),
    Sketcher.Constraint("DistanceY", 3, 2, -1, 1, Q("4.988818 mm")),
    Sketcher.Constraint("DistanceX", 7, 2, -1, 1, Q("1.170542 mm")),
    Sketcher.Constraint("DistanceY", 7, 2, -1, 1, Q("5.884712 mm")),
    Sketcher.Constraint("DistanceX", 11, 2, -1, 1, Q("4.988818 mm")),
    Sketcher.Constraint("DistanceY", 11, 2, -1, 1, Q("3.333421 mm")),
    Sketcher.Constraint("DistanceX", 15, 2, -1, 1, Q("5.884712 mm")),
    Sketcher.Constraint("DistanceY", 15, 2, -1, 1, Q("1.170542 mm")),
    Sketcher.Constraint("DistanceX", -1, 1, 20, 2, Q("1.170542 mm")),
    Sketcher.Constraint("DistanceY", 20, 2, -1, 1, Q("5.884712 mm")),
    Sketcher.Constraint("DistanceX", -1, 1, 23, 2, Q("3.333421 mm")),
    Sketcher.Constraint("DistanceY", 23, 2, -1, 1, Q("4.988818 mm")),
    Sketcher.Constraint("DistanceX", -1, 1, 25, 1, Q("7.071068 mm")),
    Sketcher.Constraint("DistanceY", 25, 1, -1, 1, Q("7.071068 mm")),
    Sketcher.Constraint("DistanceX", -1, 1, 26, 2, Q("4.242641 mm")),
    Sketcher.Constraint("DistanceX", -1, 1, 27, 2, Q("4.988818 mm")),
    Sketcher.Constraint("DistanceY", 27, 2, -1, 1, Q("3.333421 mm")),
    Sketcher.Constraint("DistanceX", -1, 1, 31, 2, Q("5.884712 mm")),
    Sketcher.Constraint("DistanceY", 31, 2, -1, 1, Q("1.170542 mm")),
    Sketcher.Constraint("DistanceX", 35, 2, -1, 1, Q("5.884712 mm")),
    Sketcher.Constraint("DistanceY", -1, 1, 35, 2, Q("1.170542 mm")),
    Sketcher.Constraint("DistanceX", 37, 1, -1, 1, Q("7.071068 mm")),
    Sketcher.Constraint("DistanceY", -1, 1, 37, 1, Q("7.071068 mm")),
    Sketcher.Constraint("DistanceX", 38, 2, -1, 1, Q("4.242641 mm")),
    Sketcher.Constraint("DistanceX", 39, 2, -1, 1, Q("4.988818 mm")),
    Sketcher.Constraint("DistanceY", -1, 1, 39, 2, Q("3.333421 mm")),
    Sketcher.Constraint("DistanceX", 43, 2, -1, 1, Q("3.333421 mm")),
    Sketcher.Constraint("DistanceY", -1, 1, 43, 2, Q("4.988818 mm")),
    Sketcher.Constraint("DistanceX", 47, 2, -1, 1, Q("1.170542 mm")),
    Sketcher.Constraint("DistanceY", -1, 1, 47, 2, Q("5.884712 mm")),
    Sketcher.Constraint("DistanceX", -1, 1, 52, 2, Q("5.884712 mm")),
    Sketcher.Constraint("DistanceY", -1, 1, 52, 2, Q("1.170542 mm")),
    Sketcher.Constraint("DistanceX", -1, 1, 56, 2, Q("4.988818 mm")),
    Sketcher.Constraint("DistanceY", -1, 1, 56, 2, Q("3.333421 mm")),
    Sketcher.Constraint("DistanceX", -1, 1, 60, 2, Q("1.170542 mm")),
    Sketcher.Constraint("DistanceY", -1, 1, 60, 2, Q("5.884712 mm")),
    Sketcher.Constraint("DistanceX", -1, 1, 62, 1, Q("7.071068 mm")),
    Sketcher.Constraint("DistanceY", -1, 1, 62, 1, Q("7.071068 mm")),
    Sketcher.Constraint("DistanceX", -1, 1, 63, 2, Q("4.242641 mm")),
    Sketcher.Constraint("DistanceX", -1, 1, 64, 2, Q("3.333421 mm")),
    Sketcher.Constraint("DistanceY", -1, 1, 64, 2, Q("4.988818 mm")),
    Sketcher.Constraint("DistanceX", 4, 2, -1, 1, Q("5.555702 mm")),
    Sketcher.Constraint("DistanceX", 5, 1, -1, 1, Q("3.826834 mm")),
    Sketcher.Constraint("DistanceY", 5, 1, -1, 1, Q("9.238795 mm")),
    Sketcher.Constraint("DistanceX", 8, 2, -1, 1, Q("1.950903 mm")),
    Sketcher.Constraint("DistanceX", 9, 1, -1, 1, Q("9.238795 mm")),
    Sketcher.Constraint("DistanceY", 9, 1, -1, 1, Q("3.826834 mm")),
    Sketcher.Constraint("DistanceX", 12, 2, -1, 1, Q("8.314696 mm")),
    Sketcher.Constraint("DistanceX", 16, 2, -1, 1, Q("9.807853 mm")),
    Sketcher.Constraint("DistanceX", -1, 1, 17, 2, Q("1.950903 mm")),
    Sketcher.Constraint("DistanceX", -1, 1, 21, 1, Q("3.826834 mm")),
    Sketcher.Constraint("DistanceY", 21, 1, -1, 1, Q("9.238795 mm")),
    Sketcher.Constraint("DistanceX", -1, 1, 24, 2, Q("5.555702 mm")),
    Sketcher.Constraint("DistanceX", -1, 1, 28, 2, Q("8.314696 mm")),
    Sketcher.Constraint("DistanceX", -1, 1, 29, 1, Q("9.238795 mm")),
    Sketcher.Constraint("DistanceY", 29, 1, -1, 1, Q("3.826834 mm")),
    Sketcher.Constraint("DistanceX", -1, 1, 32, 2, Q("9.807853 mm")),
    Sketcher.Constraint("DistanceX", 33, 1, -1, 1, Q("9.238795 mm")),
    Sketcher.Constraint("DistanceY", -1, 1, 33, 1, Q("3.826834 mm")),
    Sketcher.Constraint("DistanceX", 36, 2, -1, 1, Q("9.807853 mm")),
    Sketcher.Constraint("DistanceX", 40, 2, -1, 1, Q("8.314696 mm")),
    Sketcher.Constraint("DistanceX", 41, 1, -1, 1, Q("3.826834 mm")),
    Sketcher.Constraint("DistanceY", -1, 1, 41, 1, Q("9.238795 mm")),
    Sketcher.Constraint("DistanceX", 44, 2, -1, 1, Q("5.555702 mm")),
    Sketcher.Constraint("DistanceX", 48, 2, -1, 1, Q("1.950903 mm")),
    Sketcher.Constraint("DistanceX", -1, 1, 53, 2, Q("9.807853 mm")),
    Sketcher.Constraint("DistanceX", -1, 1, 54, 1, Q("9.238795 mm")),
    Sketcher.Constraint("DistanceY", -1, 1, 54, 1, Q("3.826834 mm")),
    Sketcher.Constraint("DistanceX", -1, 1, 57, 2, Q("8.314696 mm")),
    Sketcher.Constraint("DistanceX", -1, 1, 58, 1, Q("3.826834 mm")),
    Sketcher.Constraint("DistanceY", -1, 1, 58, 1, Q("9.238795 mm")),
    Sketcher.Constraint("DistanceX", -1, 1, 61, 2, Q("1.950903 mm")),
    Sketcher.Constraint("DistanceX", -1, 1, 65, 2, Q("5.555702 mm")),
])
sketch2.setExpression("Constraints[78]", "Params.sketch2_diameter")
sketch2.setExpression("Constraints[79]", "Params.sketch2_diameter2")
sketch2.setExpression("Constraints[80]", "Params.sketch2_width")
sketch2.setExpression("Constraints[81]", "Params.sketch2_width2")
sketch2.setExpression("Constraints[82]", "Params.sketch2_height")
pad2 = body.newObject("PartDesign::Pad", "Pad001")
pad2.Profile = sketch2
pad2.setExpression("Length", "Params.pad2_length")
pad2.Midplane = True

doc.recompute()
